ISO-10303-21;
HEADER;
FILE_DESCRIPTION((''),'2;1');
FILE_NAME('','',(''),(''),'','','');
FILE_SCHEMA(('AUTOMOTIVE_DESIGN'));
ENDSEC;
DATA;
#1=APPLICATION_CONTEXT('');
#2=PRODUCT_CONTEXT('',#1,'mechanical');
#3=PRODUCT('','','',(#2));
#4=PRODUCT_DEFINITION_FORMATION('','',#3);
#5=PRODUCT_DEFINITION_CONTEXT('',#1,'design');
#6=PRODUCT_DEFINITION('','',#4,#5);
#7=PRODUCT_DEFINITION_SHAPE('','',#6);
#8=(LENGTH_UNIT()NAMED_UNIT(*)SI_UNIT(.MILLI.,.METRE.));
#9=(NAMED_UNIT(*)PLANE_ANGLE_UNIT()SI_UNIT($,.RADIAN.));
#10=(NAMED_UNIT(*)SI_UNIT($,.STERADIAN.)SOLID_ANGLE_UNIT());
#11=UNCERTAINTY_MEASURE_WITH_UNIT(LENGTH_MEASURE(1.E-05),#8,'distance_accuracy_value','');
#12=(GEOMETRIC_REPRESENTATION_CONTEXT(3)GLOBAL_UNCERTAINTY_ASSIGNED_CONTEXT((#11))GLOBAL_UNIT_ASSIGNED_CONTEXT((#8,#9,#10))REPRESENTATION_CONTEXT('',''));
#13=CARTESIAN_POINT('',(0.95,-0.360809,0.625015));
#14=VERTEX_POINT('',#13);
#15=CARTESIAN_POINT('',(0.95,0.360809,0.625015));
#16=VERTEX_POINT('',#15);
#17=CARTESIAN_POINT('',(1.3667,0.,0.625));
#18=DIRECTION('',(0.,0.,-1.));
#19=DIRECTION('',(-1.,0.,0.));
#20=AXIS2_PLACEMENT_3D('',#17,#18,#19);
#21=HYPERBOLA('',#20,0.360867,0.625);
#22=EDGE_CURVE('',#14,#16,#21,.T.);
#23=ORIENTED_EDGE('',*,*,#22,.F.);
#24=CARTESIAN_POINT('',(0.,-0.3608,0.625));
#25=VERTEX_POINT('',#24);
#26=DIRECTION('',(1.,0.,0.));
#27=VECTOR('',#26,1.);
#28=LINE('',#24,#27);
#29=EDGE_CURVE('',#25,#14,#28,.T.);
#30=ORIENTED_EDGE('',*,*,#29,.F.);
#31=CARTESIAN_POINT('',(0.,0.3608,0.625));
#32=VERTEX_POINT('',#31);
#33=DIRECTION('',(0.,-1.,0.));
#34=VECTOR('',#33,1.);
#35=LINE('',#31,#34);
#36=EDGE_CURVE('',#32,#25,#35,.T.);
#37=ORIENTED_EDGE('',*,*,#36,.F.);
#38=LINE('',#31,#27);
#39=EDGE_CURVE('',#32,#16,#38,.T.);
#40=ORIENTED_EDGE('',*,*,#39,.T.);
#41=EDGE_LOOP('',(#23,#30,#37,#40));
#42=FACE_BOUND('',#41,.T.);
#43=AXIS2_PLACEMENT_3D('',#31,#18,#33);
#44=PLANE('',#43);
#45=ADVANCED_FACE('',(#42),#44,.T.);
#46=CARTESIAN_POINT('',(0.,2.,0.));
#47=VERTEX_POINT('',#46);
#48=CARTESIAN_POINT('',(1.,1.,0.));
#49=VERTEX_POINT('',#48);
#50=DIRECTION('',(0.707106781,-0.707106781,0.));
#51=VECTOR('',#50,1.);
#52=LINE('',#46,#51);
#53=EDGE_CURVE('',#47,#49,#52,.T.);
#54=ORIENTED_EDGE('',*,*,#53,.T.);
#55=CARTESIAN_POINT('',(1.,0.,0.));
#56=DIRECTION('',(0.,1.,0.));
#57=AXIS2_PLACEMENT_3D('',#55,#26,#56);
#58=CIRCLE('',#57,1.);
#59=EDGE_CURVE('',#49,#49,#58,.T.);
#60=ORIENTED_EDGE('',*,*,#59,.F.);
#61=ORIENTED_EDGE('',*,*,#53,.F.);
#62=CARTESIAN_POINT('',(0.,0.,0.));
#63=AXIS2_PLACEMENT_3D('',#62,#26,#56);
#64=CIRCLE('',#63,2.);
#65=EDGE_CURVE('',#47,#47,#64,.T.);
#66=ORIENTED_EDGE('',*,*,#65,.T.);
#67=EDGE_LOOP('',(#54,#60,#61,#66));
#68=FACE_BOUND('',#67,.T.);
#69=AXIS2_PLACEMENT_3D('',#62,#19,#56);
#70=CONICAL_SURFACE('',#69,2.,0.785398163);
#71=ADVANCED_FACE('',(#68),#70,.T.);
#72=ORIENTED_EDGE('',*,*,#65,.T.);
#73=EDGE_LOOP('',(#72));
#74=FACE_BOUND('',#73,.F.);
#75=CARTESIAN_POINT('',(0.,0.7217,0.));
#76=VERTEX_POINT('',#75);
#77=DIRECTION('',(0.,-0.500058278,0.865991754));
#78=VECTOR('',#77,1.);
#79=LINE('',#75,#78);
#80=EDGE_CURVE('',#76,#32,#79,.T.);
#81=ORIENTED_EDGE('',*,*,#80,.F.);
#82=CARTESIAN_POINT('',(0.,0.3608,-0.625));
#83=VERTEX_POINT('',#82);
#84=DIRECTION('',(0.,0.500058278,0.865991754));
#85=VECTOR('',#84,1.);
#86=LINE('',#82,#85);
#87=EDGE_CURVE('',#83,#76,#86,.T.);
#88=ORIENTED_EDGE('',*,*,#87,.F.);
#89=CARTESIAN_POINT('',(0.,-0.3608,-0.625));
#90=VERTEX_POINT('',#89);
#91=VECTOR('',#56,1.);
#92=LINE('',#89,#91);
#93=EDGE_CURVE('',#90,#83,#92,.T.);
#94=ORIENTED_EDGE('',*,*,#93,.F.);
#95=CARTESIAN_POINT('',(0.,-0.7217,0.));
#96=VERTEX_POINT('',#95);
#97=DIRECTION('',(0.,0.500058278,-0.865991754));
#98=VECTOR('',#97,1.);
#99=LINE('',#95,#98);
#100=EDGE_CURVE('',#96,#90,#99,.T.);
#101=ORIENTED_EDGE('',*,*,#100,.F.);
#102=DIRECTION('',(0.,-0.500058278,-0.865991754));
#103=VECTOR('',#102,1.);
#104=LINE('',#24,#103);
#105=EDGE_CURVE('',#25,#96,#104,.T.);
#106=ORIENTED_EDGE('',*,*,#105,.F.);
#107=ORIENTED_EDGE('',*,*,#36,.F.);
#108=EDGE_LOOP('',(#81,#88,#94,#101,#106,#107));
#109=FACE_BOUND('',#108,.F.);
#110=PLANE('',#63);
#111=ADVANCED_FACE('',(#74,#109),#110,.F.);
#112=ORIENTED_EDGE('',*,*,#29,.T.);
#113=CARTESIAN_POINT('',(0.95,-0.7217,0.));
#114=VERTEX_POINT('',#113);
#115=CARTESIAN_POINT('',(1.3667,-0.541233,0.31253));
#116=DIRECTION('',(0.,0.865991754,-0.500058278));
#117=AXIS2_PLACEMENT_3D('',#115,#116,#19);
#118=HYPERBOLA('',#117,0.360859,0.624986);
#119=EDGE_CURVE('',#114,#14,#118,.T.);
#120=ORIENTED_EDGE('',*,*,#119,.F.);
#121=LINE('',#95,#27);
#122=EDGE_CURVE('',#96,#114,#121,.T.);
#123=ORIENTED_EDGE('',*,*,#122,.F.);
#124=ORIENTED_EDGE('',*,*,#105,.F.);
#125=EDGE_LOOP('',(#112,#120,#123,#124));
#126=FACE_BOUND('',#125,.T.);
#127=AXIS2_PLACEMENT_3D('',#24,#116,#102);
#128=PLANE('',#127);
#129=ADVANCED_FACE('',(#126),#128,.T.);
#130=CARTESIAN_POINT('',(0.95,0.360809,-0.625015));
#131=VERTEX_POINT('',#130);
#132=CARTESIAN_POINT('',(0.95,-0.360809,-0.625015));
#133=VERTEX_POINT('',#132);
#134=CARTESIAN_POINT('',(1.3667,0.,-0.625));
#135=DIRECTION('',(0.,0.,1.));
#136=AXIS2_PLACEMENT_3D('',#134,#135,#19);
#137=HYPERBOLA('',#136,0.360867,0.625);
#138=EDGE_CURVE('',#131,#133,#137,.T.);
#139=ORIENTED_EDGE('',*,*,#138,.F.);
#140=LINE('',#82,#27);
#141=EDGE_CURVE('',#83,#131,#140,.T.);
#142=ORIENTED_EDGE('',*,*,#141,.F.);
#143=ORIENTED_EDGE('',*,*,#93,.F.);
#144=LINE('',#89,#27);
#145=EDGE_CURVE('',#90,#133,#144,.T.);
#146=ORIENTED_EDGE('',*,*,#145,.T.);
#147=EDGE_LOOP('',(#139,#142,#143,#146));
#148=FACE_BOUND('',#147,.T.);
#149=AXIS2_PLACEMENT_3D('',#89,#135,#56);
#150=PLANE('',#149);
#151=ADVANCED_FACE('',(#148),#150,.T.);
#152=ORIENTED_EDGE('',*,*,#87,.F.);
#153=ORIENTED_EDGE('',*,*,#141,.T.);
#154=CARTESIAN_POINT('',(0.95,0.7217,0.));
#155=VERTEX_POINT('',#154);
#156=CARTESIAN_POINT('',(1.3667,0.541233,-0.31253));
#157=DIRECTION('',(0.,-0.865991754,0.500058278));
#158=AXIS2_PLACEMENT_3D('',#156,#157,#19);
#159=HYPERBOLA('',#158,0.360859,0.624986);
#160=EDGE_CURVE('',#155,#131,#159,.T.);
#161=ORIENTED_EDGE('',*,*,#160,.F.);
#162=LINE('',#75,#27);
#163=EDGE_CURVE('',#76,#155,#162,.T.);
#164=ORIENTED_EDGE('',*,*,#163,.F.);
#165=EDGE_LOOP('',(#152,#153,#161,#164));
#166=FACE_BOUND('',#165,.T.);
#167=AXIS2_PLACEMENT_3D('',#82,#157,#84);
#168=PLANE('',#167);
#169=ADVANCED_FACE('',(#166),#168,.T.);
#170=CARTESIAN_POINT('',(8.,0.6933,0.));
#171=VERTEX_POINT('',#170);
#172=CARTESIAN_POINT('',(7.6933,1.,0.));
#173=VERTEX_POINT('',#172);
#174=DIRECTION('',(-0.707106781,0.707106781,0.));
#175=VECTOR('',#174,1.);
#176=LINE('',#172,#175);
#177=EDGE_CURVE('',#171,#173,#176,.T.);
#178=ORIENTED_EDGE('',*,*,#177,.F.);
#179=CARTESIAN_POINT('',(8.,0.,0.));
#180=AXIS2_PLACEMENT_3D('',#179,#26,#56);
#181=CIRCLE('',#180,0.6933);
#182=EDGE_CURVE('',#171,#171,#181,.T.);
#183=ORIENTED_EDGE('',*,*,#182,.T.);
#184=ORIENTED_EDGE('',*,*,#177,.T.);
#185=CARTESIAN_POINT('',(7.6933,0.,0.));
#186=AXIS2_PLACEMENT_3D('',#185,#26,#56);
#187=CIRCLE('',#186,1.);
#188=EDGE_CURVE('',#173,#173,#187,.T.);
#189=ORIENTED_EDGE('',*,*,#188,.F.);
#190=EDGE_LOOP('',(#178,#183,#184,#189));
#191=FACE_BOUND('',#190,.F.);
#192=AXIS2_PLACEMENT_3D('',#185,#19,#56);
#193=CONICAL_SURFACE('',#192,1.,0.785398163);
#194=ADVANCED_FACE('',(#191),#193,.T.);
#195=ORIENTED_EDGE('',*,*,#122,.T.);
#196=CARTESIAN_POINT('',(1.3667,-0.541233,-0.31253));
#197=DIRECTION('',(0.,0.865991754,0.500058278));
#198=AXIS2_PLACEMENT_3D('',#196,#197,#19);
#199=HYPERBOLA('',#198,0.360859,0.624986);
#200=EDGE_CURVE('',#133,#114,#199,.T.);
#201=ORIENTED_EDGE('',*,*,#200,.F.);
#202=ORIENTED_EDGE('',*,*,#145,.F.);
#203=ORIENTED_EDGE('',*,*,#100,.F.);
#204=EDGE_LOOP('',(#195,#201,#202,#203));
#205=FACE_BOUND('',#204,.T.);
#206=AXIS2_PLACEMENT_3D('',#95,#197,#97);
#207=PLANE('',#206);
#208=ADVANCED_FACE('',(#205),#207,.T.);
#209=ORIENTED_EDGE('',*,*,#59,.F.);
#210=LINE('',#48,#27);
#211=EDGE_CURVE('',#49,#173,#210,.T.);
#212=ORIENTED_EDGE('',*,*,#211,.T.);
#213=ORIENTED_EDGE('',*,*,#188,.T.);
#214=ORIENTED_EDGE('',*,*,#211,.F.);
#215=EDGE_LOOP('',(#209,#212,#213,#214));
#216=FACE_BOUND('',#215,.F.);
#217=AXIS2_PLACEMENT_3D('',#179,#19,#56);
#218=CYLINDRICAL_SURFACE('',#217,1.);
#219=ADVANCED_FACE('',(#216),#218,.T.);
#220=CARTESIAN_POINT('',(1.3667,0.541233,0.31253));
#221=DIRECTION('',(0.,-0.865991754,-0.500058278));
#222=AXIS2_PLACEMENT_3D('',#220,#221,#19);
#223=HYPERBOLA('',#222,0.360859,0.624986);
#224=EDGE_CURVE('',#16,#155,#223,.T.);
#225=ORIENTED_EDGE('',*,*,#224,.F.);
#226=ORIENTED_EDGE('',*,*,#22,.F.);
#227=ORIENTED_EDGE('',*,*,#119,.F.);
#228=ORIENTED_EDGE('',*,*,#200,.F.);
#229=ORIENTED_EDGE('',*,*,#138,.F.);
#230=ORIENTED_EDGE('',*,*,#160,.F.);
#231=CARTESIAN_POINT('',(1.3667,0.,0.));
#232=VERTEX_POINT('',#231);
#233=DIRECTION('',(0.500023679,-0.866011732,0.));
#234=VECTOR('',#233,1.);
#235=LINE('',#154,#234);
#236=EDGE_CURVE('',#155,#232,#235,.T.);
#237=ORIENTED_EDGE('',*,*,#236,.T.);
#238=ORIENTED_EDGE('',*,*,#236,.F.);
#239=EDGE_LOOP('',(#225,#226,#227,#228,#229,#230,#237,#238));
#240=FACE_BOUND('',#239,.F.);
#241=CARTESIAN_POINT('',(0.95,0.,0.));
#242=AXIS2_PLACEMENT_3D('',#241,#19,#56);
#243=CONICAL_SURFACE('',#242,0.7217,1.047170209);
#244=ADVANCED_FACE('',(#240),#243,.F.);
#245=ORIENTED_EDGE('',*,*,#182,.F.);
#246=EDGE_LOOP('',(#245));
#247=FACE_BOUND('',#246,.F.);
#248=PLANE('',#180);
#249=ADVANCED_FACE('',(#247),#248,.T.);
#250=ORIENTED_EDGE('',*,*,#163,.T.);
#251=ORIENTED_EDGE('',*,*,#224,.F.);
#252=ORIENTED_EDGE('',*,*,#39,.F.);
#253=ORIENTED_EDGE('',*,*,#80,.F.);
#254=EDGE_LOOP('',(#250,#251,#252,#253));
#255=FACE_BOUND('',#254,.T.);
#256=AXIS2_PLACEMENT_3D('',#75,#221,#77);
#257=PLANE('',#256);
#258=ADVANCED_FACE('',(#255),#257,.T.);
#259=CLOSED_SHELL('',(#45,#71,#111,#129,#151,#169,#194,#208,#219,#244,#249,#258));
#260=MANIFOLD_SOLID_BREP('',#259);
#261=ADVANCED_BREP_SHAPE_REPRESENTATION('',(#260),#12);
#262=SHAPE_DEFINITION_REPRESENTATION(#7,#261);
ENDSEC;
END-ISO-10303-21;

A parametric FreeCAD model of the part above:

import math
import FreeCAD as App
import Part
import Sketcher


def edges_at(feature, points):
    """Names of the edges that pass closest to the given points."""
    edges = feature.Shape.Edges
    near = lambda p: min(range(len(edges)), key=lambda i: edges[i].distToShape(Part.Vertex(*p))[0])
    return sorted({f"Edge{near(p) + 1}" for p in points})


def add_polygon(sketch, points):
    """Adds a closed chain of lines whose ends are joined by coincident constraints."""
    first, n = sketch.GeometryCount, len(points)
    for a, b in zip(points, points[1:] + points[:1]):
        sketch.addGeometry(Part.LineSegment(App.Vector(*a, 0), App.Vector(*b, 0)), False)
    for i in range(n):
        sketch.addConstraint(Sketcher.Constraint("Coincident", first + i, 2, first + (i + 1) % n, 1))

doc = App.newDocument("Part")
body = doc.addObject("PartDesign::Body", "Body")

# Sketch on XY plane
sketch1 = body.newObject("Sketcher::SketchObject", "Sketch")
sketch1.AttachmentSupport = (doc.getObject("XY_Plane"), [""])
sketch1.MapMode = "FlatFace"
add_polygon(sketch1, [(1.4, 0), (8, 0), (8, 1), (1, 1), (0, 2), (0, 0.7), (0.9, 0.7)])  # lines 0-6
sketch1.addConstraint(Sketcher.Constraint("Horizontal", 0))
sketch1.addConstraint(Sketcher.Constraint("Vertical", 1))
sketch1.addConstraint(Sketcher.Constraint("Horizontal", 2))
sketch1.addConstraint(Sketcher.Constraint("Vertical", 4))
sketch1.addConstraint(Sketcher.Constraint("Horizontal", 5))
sketch1.addConstraint(Sketcher.Constraint("PointOnObject", 0, 2, -1))
sketch1.addConstraint(Sketcher.Constraint("PointOnObject", 3, 2, -2))
sketch1.addConstraint(Sketcher.Constraint("DistanceY", 1, 1, 1, 2, 1.0))
sketch1.addConstraint(Sketcher.Constraint("DistanceX", -1, 1, 0, 2, 8.0))
sketch1.addConstraint(Sketcher.Constraint("DistanceX", -1, 1, 2, 2, 1.0))
sketch1.addConstraint(Sketcher.Constraint("DistanceY", -1, 1, 3, 2, 2.0))
sketch1.addConstraint(Sketcher.Constraint("DistanceX", 5, 1, 5, 2, 0.95))
sketch1.addConstraint(Sketcher.Constraint("DistanceX", 0, 1, 0, 2, 6.6333))
sketch1.addConstraint(Sketcher.Constraint("DistanceY", 4, 2, 4, 1, 1.2783))
revolution = body.newObject("PartDesign::Revolution", "Revolution")
revolution.Profile = sketch1
revolution.ReferenceAxis = (sketch1, ["H_Axis"])
revolution.Angle = 360
doc.recompute()

chamfer = body.newObject("PartDesign::Chamfer", "Chamfer")
chamfer.Base = (revolution, edges_at(revolution, [(8, -1, 0)]))
chamfer.ChamferType = "Two distances"
chamfer.Size = 0.3067
chamfer.Size2 = 0.3067

# Sketch on YZ plane
sketch2 = body.newObject("Sketcher::SketchObject", "Sketch001")
sketch2.AttachmentSupport = (doc.getObject("YZ_Plane"), [""])
sketch2.MapMode = "FlatFace"
sketch2.addGeometry(Part.ArcOfCircle(Part.Circle(App.Vector(0, 0, 0), App.Vector(0, 0, 1), 0.7), math.radians(60), math.radians(120)), False)
sketch2.addGeometry(Part.LineSegment(App.Vector(-0.4, 0.6, 0), App.Vector(0.4, 0.6, 0)), False)
sketch2.addGeometry(Part.LineSegment(App.Vector(0.7, 0, 0), App.Vector(0.4, 0.6, 0)), False)
sketch2.addGeometry(Part.ArcOfCircle(Part.Circle(App.Vector(0, 0, 0), App.Vector(0, 0, 1), 0.7), math.radians(0), math.radians(60)), False)
sketch2.addGeometry(Part.ArcOfCircle(Part.Circle(App.Vector(0, 0, 0), App.Vector(0, 0, 1), 0.7), math.radians(120), math.radians(180)), False)
sketch2.addGeometry(Part.LineSegment(App.Vector(-0.7, 0, 0), App.Vector(-0.4, 0.6, 0)), False)
sketch2.addGeometry(Part.LineSegment(App.Vector(0.4, -0.6, 0), App.Vector(0.7, 0, 0)), False)
sketch2.addGeometry(Part.ArcOfCircle(Part.Circle(App.Vector(0, 0, 0), App.Vector(0, 0, 1), 0.7), math.radians(-60), math.radians(0)), False)
sketch2.addGeometry(Part.ArcOfCircle(Part.Circle(App.Vector(0, 0, 0), App.Vector(0, 0, 1), 0.7), math.radians(180), math.radians(240)), False)
sketch2.addGeometry(Part.LineSegment(App.Vector(-0.7, 0, 0), App.Vector(-0.4, -0.6, 0)), False)
sketch2.addGeometry(Part.LineSegment(App.Vector(-0.4, -0.6, 0), App.Vector(0.4, -0.6, 0)), False)
sketch2.addGeometry(Part.ArcOfCircle(Part.Circle(App.Vector(0, 0, 0), App.Vector(0, 0, 1), 0.7), math.radians(-120), math.radians(-60)), False)
sketch2.addConstraint(Sketcher.Constraint("Coincident", 0, 1, 1, 2))
sketch2.addConstraint(Sketcher.Constraint("Coincident", 1, 1, 0, 2))
sketch2.addConstraint(Sketcher.Constraint("Coincident", 2, 1, 3, 1))
sketch2.addConstraint(Sketcher.Constraint("Coincident", 3, 2, 2, 2))
sketch2.addConstraint(Sketcher.Constraint("Coincident", 4, 1, 5, 2))
sketch2.addConstraint(Sketcher.Constraint("Coincident", 5, 1, 4, 2))
sketch2.addConstraint(Sketcher.Constraint("Coincident", 6, 1, 7, 1))
sketch2.addConstraint(Sketcher.Constraint("Coincident", 7, 2, 6, 2))
sketch2.addConstraint(Sketcher.Constraint("Coincident", 8, 1, 9, 1))
sketch2.addConstraint(Sketcher.Constraint("Coincident", 9, 2, 8, 2))
sketch2.addConstraint(Sketcher.Constraint("Coincident", 10, 1, 11, 1))
sketch2.addConstraint(Sketcher.Constraint("Coincident", 11, 2, 10, 2))
sketch2.addConstraint(Sketcher.Constraint("Horizontal", 1))
sketch2.addConstraint(Sketcher.Constraint("Horizontal", 10))
sketch2.addConstraint(Sketcher.Constraint("Coincident", 0, 3, -1, 1))
sketch2.addConstraint(Sketcher.Constraint("Coincident", 3, 3, -1, 1))
sketch2.addConstraint(Sketcher.Constraint("Coincident", 4, 3, -1, 1))
sketch2.addConstraint(Sketcher.Constraint("Coincident", 7, 3, -1, 1))
sketch2.addConstraint(Sketcher.Constraint("Coincident", 8, 3, -1, 1))
sketch2.addConstraint(Sketcher.Constraint("Coincident", 11, 3, -1, 1))
sketch2.addConstraint(Sketcher.Constraint("Coincident", 3, 2, 0, 1))
sketch2.addConstraint(Sketcher.Constraint("Coincident", 4, 1, 1, 1))
sketch2.addConstraint(Sketcher.Constraint("Coincident", 7, 2, 2, 1))
sketch2.addConstraint(Sketcher.Constraint("Coincident", 8, 1, 5, 1))
sketch2.addConstraint(Sketcher.Constraint("Coincident", 10, 1, 9, 2))
sketch2.addConstraint(Sketcher.Constraint("PointOnObject", 2, 1, -1))
sketch2.addConstraint(Sketcher.Constraint("PointOnObject", 5, 1, -1))
sketch2.addConstraint(Sketcher.Constraint("Parallel", 5, 6))
sketch2.addConstraint(Sketcher.Constraint("Parallel", 2, 9))
sketch2.addConstraint(Sketcher.Constraint("Radius", 0, 0.7217))
sketch2.addConstraint(Sketcher.Constraint("DistanceX", 1, 1, 1, 2, 0.7216))
pad1 = body.newObject("PartDesign::Pad", "Pad")
pad1.Profile = sketch2
pad1.Type = "UpToFirst"

doc.recompute()
